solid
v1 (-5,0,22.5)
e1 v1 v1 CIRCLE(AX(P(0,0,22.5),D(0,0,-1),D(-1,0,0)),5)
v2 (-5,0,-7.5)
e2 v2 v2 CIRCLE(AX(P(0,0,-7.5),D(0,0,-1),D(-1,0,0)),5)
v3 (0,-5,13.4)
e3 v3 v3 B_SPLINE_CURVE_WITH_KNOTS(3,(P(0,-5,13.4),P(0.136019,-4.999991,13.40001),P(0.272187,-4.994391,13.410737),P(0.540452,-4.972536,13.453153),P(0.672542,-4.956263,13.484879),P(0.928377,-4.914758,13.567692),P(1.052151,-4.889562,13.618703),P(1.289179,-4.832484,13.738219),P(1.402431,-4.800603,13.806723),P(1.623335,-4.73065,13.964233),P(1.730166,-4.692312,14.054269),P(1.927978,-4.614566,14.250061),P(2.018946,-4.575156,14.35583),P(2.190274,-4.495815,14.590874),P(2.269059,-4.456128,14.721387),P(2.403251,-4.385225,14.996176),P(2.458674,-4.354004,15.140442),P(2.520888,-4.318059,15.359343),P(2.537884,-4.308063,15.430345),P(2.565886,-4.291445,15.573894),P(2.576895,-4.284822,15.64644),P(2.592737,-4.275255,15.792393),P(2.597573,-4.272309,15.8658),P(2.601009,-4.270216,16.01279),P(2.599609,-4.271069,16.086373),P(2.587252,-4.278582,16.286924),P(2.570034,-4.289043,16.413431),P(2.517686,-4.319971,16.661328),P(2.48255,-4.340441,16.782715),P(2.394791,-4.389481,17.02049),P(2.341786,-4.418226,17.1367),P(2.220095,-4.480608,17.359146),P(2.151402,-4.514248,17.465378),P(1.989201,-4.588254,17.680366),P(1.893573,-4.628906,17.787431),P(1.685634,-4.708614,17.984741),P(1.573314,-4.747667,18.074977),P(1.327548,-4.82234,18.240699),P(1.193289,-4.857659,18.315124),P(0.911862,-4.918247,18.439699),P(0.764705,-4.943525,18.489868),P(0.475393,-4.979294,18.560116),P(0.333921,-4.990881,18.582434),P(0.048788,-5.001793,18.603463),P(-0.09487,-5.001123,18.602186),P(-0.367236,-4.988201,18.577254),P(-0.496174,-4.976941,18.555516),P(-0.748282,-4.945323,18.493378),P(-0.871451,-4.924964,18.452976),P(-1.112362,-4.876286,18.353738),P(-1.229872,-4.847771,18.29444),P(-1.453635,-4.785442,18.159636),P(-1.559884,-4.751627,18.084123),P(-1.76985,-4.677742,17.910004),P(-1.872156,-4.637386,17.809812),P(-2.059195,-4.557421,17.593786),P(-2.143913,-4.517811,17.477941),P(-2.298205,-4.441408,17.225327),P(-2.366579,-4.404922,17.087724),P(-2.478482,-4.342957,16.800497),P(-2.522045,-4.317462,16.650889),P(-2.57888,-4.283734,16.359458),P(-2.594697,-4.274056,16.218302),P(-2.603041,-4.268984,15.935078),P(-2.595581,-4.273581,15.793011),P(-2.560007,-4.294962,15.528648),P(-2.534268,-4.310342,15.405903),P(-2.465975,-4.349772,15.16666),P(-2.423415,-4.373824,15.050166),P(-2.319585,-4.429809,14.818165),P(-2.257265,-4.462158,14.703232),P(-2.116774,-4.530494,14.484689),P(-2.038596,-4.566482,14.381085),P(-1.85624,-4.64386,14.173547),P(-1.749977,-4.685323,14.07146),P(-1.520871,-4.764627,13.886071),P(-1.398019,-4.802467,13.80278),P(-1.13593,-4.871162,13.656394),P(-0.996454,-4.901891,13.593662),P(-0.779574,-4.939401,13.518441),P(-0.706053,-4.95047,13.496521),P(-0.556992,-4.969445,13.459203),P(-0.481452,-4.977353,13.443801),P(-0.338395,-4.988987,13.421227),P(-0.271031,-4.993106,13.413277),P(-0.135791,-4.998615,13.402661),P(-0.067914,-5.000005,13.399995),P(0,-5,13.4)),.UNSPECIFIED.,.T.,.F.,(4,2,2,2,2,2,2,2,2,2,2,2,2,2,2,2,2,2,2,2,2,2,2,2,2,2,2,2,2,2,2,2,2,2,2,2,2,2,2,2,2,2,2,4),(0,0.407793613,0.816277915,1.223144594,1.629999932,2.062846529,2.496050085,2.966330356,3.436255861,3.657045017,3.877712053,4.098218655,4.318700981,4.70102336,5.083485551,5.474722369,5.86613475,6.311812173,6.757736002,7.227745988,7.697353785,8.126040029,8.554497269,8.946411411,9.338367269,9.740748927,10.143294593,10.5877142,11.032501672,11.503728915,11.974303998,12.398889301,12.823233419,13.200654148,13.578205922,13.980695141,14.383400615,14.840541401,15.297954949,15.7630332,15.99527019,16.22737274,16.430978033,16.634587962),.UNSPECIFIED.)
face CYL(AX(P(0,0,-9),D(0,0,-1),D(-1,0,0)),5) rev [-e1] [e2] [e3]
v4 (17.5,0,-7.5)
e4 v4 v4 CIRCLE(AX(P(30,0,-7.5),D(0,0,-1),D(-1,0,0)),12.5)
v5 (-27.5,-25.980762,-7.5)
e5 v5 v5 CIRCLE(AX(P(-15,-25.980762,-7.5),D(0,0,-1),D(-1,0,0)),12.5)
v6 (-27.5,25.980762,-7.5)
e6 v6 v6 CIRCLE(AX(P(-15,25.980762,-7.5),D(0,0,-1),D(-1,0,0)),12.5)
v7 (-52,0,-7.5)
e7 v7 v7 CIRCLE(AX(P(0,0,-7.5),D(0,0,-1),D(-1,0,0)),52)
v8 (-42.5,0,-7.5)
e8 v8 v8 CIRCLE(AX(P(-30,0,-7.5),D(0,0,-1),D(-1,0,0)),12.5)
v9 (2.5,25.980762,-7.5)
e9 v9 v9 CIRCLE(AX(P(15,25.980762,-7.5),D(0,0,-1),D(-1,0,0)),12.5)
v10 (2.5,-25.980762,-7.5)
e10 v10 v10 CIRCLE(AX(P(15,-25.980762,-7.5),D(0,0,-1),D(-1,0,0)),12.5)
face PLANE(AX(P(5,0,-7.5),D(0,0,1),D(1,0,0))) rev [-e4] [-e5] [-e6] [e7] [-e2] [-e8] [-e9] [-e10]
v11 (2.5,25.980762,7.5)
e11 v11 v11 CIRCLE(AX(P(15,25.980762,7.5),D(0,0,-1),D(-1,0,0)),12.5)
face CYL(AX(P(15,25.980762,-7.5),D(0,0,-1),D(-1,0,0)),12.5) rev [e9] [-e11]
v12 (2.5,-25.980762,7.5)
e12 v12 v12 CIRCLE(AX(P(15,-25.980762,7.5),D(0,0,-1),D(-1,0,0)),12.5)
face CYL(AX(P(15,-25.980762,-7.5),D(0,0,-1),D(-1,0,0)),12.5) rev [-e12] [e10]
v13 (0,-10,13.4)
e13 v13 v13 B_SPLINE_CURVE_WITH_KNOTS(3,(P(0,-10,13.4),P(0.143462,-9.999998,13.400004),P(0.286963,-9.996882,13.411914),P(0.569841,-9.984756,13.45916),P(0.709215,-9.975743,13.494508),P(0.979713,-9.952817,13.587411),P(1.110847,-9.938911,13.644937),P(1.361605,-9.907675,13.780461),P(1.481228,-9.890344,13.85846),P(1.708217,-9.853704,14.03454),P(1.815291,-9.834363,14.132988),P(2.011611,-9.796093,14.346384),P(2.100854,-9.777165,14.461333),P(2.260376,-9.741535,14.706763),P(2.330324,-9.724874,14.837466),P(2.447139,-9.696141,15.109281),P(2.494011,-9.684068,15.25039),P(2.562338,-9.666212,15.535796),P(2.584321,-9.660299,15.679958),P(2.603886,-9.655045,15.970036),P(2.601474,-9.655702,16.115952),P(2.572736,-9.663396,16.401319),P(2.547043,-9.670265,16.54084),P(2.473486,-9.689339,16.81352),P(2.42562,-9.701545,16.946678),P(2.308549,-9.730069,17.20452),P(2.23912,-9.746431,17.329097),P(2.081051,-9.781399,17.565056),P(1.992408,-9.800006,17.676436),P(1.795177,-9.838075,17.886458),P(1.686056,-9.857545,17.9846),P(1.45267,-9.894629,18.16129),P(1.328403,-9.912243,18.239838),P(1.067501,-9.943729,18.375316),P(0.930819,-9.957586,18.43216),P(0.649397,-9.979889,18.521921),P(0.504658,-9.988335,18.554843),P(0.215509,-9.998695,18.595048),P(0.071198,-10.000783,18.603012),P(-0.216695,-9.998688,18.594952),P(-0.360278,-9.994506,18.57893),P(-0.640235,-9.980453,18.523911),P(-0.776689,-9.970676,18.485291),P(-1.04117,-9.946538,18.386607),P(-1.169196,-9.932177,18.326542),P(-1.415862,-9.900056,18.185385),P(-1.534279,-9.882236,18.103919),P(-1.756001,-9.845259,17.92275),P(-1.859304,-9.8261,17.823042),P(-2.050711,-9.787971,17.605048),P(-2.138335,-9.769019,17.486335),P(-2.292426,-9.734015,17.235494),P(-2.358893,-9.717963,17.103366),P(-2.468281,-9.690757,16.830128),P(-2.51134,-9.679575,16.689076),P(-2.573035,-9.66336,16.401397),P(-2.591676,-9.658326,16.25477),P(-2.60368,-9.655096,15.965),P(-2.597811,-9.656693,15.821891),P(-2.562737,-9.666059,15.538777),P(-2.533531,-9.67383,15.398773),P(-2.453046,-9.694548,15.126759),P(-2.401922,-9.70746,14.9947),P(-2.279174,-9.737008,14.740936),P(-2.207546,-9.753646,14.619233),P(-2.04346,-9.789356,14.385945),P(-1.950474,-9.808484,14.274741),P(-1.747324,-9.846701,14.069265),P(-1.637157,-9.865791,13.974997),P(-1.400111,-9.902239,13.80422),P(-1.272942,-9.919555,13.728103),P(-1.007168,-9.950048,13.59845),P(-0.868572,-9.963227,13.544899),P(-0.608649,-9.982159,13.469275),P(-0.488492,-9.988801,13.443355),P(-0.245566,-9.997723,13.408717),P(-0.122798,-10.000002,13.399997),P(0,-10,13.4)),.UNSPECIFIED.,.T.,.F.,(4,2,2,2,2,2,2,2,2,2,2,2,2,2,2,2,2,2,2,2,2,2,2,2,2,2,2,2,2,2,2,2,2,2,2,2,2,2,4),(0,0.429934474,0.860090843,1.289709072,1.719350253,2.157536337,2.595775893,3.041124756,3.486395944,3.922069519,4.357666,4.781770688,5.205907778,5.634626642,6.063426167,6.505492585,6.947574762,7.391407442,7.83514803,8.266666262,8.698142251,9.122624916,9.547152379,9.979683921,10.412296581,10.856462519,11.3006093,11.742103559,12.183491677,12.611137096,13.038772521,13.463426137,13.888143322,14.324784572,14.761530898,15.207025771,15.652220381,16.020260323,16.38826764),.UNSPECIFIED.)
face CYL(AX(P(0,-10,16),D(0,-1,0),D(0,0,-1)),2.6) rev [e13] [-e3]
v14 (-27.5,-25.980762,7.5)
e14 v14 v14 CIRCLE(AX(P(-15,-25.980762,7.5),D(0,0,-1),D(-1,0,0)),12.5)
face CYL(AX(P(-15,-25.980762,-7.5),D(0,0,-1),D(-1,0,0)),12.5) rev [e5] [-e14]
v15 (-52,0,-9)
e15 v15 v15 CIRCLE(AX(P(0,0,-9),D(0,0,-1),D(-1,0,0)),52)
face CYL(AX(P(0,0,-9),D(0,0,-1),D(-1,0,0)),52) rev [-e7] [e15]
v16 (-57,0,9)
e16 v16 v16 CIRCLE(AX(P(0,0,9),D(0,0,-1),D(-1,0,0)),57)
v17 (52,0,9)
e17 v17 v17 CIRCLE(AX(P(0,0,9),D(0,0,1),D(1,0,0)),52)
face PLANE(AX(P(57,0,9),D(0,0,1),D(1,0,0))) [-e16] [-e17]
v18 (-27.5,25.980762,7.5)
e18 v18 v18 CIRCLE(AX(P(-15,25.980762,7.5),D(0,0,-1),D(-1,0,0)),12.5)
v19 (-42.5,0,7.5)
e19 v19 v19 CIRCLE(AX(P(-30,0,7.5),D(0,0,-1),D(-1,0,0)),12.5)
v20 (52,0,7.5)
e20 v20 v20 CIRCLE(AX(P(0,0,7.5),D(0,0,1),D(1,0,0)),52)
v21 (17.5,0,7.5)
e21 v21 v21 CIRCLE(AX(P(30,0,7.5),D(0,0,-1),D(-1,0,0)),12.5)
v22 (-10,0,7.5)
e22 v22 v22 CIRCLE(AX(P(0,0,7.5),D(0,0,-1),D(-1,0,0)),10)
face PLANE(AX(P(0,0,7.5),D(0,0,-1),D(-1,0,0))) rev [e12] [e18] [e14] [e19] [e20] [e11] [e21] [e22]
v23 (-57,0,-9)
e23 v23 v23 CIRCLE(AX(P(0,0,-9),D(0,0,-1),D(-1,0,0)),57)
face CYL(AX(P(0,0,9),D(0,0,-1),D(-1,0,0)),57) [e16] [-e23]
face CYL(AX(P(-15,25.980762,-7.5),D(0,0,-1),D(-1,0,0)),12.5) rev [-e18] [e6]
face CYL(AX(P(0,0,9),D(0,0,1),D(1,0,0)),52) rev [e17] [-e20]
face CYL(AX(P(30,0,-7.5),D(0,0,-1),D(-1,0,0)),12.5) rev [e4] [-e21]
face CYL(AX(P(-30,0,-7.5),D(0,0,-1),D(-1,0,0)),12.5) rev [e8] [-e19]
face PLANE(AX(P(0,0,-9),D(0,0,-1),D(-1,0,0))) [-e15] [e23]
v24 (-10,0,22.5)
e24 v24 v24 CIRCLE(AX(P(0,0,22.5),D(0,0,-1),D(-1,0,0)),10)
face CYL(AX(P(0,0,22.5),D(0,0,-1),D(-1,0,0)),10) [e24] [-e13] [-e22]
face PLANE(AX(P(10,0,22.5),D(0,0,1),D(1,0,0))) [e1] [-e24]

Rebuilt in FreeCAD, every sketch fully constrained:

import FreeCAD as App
import Part
import Sketcher

V = App.Vector

doc = App.newDocument("Part")
params = doc.addObject("Spreadsheet::Sheet", "Params")
for row, (alias, value) in enumerate([
    ("sketch1_width", "57 mm"),
    ("sketch1_height", "18 mm"),
    ("revolution_angle", "360 deg"),
    ("sketch2_diameter", "104 mm"),
    ("hole_diameter", "104 mm"),
    ("hole_depth", "1.5 mm"),
    ("sketch3_width", "10 mm"),
    ("sketch3_height", "15 mm"),
    ("revolution2_angle", "360 deg"),
    ("sketch4_diameter", "10 mm"),
    ("hole2_diameter", "10 mm"),
    ("hole2_cbore_diameter", "104 mm"),
    ("hole2_cbore_depth", "1.5 mm"),
    ("sketch5_diameter", "5.2 mm"),
    ("pocket1_length", "5.729169 mm"),
    ("sketch6_diameter", "25 mm"),
    ("hole3_diameter", "25 mm"),
    ("hole3_depth", "30 mm"),
], start=1):
    params.set(f"A{row}", alias)
    params.set(f"B{row}", "=" + value)
    params.setAlias(f"B{row}", alias)

body = doc.addObject("PartDesign::Body", "Body")

sketch1 = body.newObject("Sketcher::SketchObject", "Sketch")
sketch1.AttachmentSupport = (doc.getObject("XZ_Plane"), [""])
sketch1.MapMode = "FlatFace"
sketch1.addGeometry([
    Part.LineSegment(V(0, 9, 0), V(0, -9, 0)),
    Part.LineSegment(V(0, -9, 0), V(57, -9, 0)),
    Part.LineSegment(V(57, -9, 0), V(57, 9, 0)),
    Part.LineSegment(V(57, 9, 0), V(0, 9, 0)),
], False)
sketch1.addConstraint([
    Sketcher.Constraint("Coincident", 0, 2, 1, 1),
    Sketcher.Constraint("Coincident", 1, 2, 2, 1),
    Sketcher.Constraint("Coincident", 2, 2, 3, 1),
    Sketcher.Constraint("Coincident", 3, 2, 0, 1),
    Sketcher.Constraint("Vertical", 0),
    Sketcher.Constraint("Horizontal", 1),
    Sketcher.Constraint("Vertical", 2),
    Sketcher.Constraint("Horizontal", 3),
    Sketcher.Constraint("Symmetric", 0, 2, 3, 2, -1, 1),
    Sketcher.Constraint("DistanceX", 1, 1, 1, 2, 57.0),
    Sketcher.Constraint("DistanceY", 0, 2, 0, 1, 18.0),
])
sketch1.setExpression("Constraints[9]", "Params.sketch1_width")
sketch1.setExpression("Constraints[10]", "Params.sketch1_height")
revolution = body.newObject("PartDesign::Revolution", "Revolution")
revolution.Profile = sketch1
revolution.ReferenceAxis = (sketch1, ["V_Axis"])
revolution.setExpression("Angle", "Params.revolution_angle")

sketch2 = body.newObject("Sketcher::SketchObject", "Sketch001")
sketch2.AttachmentSupport = (doc.getObject("XY_Plane"), [""])
sketch2.MapMode = "FlatFace"
sketch2.AttachmentOffset = App.Placement(V(0, 0, 9), App.Rotation())
sketch2.addGeometry(Part.Circle(V(0, 0, 0), V(0, 0, 1), 52), False)
sketch2.addConstraint([
    Sketcher.Constraint("Coincident", 0, 3, -1, 1),
    Sketcher.Constraint("Diameter", 0, 104.0),
])
sketch2.setExpression("Constraints[1]", "Params.sketch2_diameter")
doc.recompute()
hole = body.newObject("PartDesign::Hole", "Hole")
hole.Profile = sketch2
hole.ThreadType = "None"
hole.setExpression("Diameter", "Params.hole_diameter")
hole.DepthType = "Dimension"
hole.setExpression("Depth", "Params.hole_depth")
hole.DrillPoint = "Flat"

sketch3 = body.newObject("Sketcher::SketchObject", "Sketch002")
sketch3.AttachmentSupport = (doc.getObject("XZ_Plane"), [""])
sketch3.MapMode = "FlatFace"
sketch3.addGeometry([
    Part.LineSegment(V(0, 22, 0), V(0, 8, 0)),
    Part.LineSegment(V(0, 8, 0), V(10, 8, 0)),
    Part.LineSegment(V(10, 8, 0), V(10, 22, 0)),
    Part.LineSegment(V(10, 22, 0), V(0, 22, 0)),
], False)
sketch3.addConstraint([
    Sketcher.Constraint("Coincident", 0, 2, 1, 1),
    Sketcher.Constraint("Coincident", 1, 2, 2, 1),
    Sketcher.Constraint("Coincident", 2, 2, 3, 1),
    Sketcher.Constraint("Coincident", 3, 2, 0, 1),
    Sketcher.Constraint("Vertical", 0),
    Sketcher.Constraint("Horizontal", 1),
    Sketcher.Constraint("Vertical", 2),
    Sketcher.Constraint("Horizontal", 3),
    Sketcher.Constraint("PointOnObject", 0, 2, -2),
    Sketcher.Constraint("DistanceX", 1, 1, 1, 2, 10.0),
    Sketcher.Constraint("DistanceY", 0, 2, 0, 1, 15.0),
    Sketcher.Constraint("DistanceY", -1, 1, 0, 2, 7.5),
])
sketch3.setExpression("Constraints[9]", "Params.sketch3_width")
sketch3.setExpression("Constraints[10]", "Params.sketch3_height")
revolution2 = body.newObject("PartDesign::Revolution", "Revolution001")
revolution2.Profile = sketch3
revolution2.ReferenceAxis = (sketch3, ["V_Axis"])
revolution2.setExpression("Angle", "Params.revolution2_angle")

sketch4 = body.newObject("Sketcher::SketchObject", "Sketch003")
sketch4.AttachmentSupport = (doc.getObject("XY_Plane"), [""])
sketch4.MapMode = "FlatFace"
sketch4.AttachmentOffset = App.Placement(V(0, 0, -9), App.Rotation())
sketch4.addGeometry(Part.Circle(V(0, 0, 0), V(0, 0, 1), 5), False)
sketch4.addConstraint([
    Sketcher.Constraint("Coincident", 0, 3, -1, 1),
    Sketcher.Constraint("Diameter", 0, 10.0),
])
sketch4.setExpression("Constraints[1]", "Params.sketch4_diameter")
doc.recompute()
hole2 = body.newObject("PartDesign::Hole", "Hole001")
hole2.Profile = sketch4
hole2.ThreadType = "None"
hole2.setExpression("Diameter", "Params.hole2_diameter")
hole2.DepthType = "ThroughAll"
hole2.HoleCutType = "Counterbore"
hole2.setExpression("HoleCutDiameter", "Params.hole2_cbore_diameter")
hole2.setExpression("HoleCutDepth", "Params.hole2_cbore_depth")
hole2.Reversed = True

sketch5 = body.newObject("Sketcher::SketchObject", "Sketch004")
sketch5.AttachmentSupport = (doc.getObject("XZ_Plane"), [""])
sketch5.MapMode = "FlatFace"
sketch5.AttachmentOffset = App.Placement(V(0, 0, 10), App.Rotation())
sketch5.addGeometry(Part.Circle(V(0, 16, 0), V(0, 0, 1), 2.6), False)
sketch5.addConstraint([
    Sketcher.Constraint("PointOnObject", 0, 3, -2),
    Sketcher.Constraint("Diameter", 0, 5.2),
    Sketcher.Constraint("DistanceY", -1, 1, 0, 3, 16.0),
])
sketch5.setExpression("Constraints[1]", "Params.sketch5_diameter")
pocket1 = body.newObject("PartDesign::Pocket", "Pocket")
pocket1.Profile = sketch5
pocket1.setExpression("Length", "Params.pocket1_length")

sketch6 = body.newObject("Sketcher::SketchObject", "Sketch005")
sketch6.AttachmentSupport = (doc.getObject("XY_Plane"), [""])
sketch6.MapMode = "FlatFace"
sketch6.AttachmentOffset = App.Placement(V(0, 0, -7.5), App.Rotation())
sketch6.addGeometry([
    Part.Circle(V(30, 0, 0), V(0, 0, 1), 12),
    Part.Circle(V(15, 26, 0), V(0, 0, 1), 12),
    Part.Circle(V(-15, 26, 0), V(0, 0, 1), 12),
    Part.Circle(V(-30, 0, 0), V(0, 0, 1), 12),
    Part.Circle(V(-15, -26, 0), V(0, 0, 1), 12),
    Part.Circle(V(15, -26, 0), V(0, 0, 1), 12),
], False)
sketch6.addConstraint([
    Sketcher.Constraint("Equal", 0, 1),
    Sketcher.Constraint("Equal", 1, 2),
    Sketcher.Constraint("Equal", 2, 3),
    Sketcher.Constraint("Equal", 3, 4),
    Sketcher.Constraint("Equal", 4, 5),
    Sketcher.Constraint("Symmetric", 0, 3, 3, 3, -1, 1),
    Sketcher.Constraint("Symmetric", 1, 3, 4, 3, -1, 1),
    Sketcher.Constraint("Symmetric", 2, 3, 5, 3, -1, 1),
    Sketcher.Constraint("Symmetric", 1, 3, 2, 3, -2),
    Sketcher.Constraint("PointOnObject", 0, 3, -1),
    Sketcher.Constraint("Diameter", 0, 25.0),
    Sketcher.Constraint("DistanceX", -1, 1, 0, 3, 30.0),
    Sketcher.Constraint("DistanceX", -1, 1, 1, 3, 15.0),
    Sketcher.Constraint("DistanceY", -1, 1, 1, 3, 25.980762),
])
sketch6.setExpression("Constraints[10]", "Params.sketch6_diameter")
doc.recompute()
hole3 = body.newObject("PartDesign::Hole", "Hole002")
hole3.Profile = sketch6
hole3.ThreadType = "None"
hole3.setExpression("Diameter", "Params.hole3_diameter")
hole3.DepthType = "Dimension"
hole3.setExpression("Depth", "Params.hole3_depth")
hole3.DrillPoint = "Flat"
hole3.Reversed = True

doc.recompute()
